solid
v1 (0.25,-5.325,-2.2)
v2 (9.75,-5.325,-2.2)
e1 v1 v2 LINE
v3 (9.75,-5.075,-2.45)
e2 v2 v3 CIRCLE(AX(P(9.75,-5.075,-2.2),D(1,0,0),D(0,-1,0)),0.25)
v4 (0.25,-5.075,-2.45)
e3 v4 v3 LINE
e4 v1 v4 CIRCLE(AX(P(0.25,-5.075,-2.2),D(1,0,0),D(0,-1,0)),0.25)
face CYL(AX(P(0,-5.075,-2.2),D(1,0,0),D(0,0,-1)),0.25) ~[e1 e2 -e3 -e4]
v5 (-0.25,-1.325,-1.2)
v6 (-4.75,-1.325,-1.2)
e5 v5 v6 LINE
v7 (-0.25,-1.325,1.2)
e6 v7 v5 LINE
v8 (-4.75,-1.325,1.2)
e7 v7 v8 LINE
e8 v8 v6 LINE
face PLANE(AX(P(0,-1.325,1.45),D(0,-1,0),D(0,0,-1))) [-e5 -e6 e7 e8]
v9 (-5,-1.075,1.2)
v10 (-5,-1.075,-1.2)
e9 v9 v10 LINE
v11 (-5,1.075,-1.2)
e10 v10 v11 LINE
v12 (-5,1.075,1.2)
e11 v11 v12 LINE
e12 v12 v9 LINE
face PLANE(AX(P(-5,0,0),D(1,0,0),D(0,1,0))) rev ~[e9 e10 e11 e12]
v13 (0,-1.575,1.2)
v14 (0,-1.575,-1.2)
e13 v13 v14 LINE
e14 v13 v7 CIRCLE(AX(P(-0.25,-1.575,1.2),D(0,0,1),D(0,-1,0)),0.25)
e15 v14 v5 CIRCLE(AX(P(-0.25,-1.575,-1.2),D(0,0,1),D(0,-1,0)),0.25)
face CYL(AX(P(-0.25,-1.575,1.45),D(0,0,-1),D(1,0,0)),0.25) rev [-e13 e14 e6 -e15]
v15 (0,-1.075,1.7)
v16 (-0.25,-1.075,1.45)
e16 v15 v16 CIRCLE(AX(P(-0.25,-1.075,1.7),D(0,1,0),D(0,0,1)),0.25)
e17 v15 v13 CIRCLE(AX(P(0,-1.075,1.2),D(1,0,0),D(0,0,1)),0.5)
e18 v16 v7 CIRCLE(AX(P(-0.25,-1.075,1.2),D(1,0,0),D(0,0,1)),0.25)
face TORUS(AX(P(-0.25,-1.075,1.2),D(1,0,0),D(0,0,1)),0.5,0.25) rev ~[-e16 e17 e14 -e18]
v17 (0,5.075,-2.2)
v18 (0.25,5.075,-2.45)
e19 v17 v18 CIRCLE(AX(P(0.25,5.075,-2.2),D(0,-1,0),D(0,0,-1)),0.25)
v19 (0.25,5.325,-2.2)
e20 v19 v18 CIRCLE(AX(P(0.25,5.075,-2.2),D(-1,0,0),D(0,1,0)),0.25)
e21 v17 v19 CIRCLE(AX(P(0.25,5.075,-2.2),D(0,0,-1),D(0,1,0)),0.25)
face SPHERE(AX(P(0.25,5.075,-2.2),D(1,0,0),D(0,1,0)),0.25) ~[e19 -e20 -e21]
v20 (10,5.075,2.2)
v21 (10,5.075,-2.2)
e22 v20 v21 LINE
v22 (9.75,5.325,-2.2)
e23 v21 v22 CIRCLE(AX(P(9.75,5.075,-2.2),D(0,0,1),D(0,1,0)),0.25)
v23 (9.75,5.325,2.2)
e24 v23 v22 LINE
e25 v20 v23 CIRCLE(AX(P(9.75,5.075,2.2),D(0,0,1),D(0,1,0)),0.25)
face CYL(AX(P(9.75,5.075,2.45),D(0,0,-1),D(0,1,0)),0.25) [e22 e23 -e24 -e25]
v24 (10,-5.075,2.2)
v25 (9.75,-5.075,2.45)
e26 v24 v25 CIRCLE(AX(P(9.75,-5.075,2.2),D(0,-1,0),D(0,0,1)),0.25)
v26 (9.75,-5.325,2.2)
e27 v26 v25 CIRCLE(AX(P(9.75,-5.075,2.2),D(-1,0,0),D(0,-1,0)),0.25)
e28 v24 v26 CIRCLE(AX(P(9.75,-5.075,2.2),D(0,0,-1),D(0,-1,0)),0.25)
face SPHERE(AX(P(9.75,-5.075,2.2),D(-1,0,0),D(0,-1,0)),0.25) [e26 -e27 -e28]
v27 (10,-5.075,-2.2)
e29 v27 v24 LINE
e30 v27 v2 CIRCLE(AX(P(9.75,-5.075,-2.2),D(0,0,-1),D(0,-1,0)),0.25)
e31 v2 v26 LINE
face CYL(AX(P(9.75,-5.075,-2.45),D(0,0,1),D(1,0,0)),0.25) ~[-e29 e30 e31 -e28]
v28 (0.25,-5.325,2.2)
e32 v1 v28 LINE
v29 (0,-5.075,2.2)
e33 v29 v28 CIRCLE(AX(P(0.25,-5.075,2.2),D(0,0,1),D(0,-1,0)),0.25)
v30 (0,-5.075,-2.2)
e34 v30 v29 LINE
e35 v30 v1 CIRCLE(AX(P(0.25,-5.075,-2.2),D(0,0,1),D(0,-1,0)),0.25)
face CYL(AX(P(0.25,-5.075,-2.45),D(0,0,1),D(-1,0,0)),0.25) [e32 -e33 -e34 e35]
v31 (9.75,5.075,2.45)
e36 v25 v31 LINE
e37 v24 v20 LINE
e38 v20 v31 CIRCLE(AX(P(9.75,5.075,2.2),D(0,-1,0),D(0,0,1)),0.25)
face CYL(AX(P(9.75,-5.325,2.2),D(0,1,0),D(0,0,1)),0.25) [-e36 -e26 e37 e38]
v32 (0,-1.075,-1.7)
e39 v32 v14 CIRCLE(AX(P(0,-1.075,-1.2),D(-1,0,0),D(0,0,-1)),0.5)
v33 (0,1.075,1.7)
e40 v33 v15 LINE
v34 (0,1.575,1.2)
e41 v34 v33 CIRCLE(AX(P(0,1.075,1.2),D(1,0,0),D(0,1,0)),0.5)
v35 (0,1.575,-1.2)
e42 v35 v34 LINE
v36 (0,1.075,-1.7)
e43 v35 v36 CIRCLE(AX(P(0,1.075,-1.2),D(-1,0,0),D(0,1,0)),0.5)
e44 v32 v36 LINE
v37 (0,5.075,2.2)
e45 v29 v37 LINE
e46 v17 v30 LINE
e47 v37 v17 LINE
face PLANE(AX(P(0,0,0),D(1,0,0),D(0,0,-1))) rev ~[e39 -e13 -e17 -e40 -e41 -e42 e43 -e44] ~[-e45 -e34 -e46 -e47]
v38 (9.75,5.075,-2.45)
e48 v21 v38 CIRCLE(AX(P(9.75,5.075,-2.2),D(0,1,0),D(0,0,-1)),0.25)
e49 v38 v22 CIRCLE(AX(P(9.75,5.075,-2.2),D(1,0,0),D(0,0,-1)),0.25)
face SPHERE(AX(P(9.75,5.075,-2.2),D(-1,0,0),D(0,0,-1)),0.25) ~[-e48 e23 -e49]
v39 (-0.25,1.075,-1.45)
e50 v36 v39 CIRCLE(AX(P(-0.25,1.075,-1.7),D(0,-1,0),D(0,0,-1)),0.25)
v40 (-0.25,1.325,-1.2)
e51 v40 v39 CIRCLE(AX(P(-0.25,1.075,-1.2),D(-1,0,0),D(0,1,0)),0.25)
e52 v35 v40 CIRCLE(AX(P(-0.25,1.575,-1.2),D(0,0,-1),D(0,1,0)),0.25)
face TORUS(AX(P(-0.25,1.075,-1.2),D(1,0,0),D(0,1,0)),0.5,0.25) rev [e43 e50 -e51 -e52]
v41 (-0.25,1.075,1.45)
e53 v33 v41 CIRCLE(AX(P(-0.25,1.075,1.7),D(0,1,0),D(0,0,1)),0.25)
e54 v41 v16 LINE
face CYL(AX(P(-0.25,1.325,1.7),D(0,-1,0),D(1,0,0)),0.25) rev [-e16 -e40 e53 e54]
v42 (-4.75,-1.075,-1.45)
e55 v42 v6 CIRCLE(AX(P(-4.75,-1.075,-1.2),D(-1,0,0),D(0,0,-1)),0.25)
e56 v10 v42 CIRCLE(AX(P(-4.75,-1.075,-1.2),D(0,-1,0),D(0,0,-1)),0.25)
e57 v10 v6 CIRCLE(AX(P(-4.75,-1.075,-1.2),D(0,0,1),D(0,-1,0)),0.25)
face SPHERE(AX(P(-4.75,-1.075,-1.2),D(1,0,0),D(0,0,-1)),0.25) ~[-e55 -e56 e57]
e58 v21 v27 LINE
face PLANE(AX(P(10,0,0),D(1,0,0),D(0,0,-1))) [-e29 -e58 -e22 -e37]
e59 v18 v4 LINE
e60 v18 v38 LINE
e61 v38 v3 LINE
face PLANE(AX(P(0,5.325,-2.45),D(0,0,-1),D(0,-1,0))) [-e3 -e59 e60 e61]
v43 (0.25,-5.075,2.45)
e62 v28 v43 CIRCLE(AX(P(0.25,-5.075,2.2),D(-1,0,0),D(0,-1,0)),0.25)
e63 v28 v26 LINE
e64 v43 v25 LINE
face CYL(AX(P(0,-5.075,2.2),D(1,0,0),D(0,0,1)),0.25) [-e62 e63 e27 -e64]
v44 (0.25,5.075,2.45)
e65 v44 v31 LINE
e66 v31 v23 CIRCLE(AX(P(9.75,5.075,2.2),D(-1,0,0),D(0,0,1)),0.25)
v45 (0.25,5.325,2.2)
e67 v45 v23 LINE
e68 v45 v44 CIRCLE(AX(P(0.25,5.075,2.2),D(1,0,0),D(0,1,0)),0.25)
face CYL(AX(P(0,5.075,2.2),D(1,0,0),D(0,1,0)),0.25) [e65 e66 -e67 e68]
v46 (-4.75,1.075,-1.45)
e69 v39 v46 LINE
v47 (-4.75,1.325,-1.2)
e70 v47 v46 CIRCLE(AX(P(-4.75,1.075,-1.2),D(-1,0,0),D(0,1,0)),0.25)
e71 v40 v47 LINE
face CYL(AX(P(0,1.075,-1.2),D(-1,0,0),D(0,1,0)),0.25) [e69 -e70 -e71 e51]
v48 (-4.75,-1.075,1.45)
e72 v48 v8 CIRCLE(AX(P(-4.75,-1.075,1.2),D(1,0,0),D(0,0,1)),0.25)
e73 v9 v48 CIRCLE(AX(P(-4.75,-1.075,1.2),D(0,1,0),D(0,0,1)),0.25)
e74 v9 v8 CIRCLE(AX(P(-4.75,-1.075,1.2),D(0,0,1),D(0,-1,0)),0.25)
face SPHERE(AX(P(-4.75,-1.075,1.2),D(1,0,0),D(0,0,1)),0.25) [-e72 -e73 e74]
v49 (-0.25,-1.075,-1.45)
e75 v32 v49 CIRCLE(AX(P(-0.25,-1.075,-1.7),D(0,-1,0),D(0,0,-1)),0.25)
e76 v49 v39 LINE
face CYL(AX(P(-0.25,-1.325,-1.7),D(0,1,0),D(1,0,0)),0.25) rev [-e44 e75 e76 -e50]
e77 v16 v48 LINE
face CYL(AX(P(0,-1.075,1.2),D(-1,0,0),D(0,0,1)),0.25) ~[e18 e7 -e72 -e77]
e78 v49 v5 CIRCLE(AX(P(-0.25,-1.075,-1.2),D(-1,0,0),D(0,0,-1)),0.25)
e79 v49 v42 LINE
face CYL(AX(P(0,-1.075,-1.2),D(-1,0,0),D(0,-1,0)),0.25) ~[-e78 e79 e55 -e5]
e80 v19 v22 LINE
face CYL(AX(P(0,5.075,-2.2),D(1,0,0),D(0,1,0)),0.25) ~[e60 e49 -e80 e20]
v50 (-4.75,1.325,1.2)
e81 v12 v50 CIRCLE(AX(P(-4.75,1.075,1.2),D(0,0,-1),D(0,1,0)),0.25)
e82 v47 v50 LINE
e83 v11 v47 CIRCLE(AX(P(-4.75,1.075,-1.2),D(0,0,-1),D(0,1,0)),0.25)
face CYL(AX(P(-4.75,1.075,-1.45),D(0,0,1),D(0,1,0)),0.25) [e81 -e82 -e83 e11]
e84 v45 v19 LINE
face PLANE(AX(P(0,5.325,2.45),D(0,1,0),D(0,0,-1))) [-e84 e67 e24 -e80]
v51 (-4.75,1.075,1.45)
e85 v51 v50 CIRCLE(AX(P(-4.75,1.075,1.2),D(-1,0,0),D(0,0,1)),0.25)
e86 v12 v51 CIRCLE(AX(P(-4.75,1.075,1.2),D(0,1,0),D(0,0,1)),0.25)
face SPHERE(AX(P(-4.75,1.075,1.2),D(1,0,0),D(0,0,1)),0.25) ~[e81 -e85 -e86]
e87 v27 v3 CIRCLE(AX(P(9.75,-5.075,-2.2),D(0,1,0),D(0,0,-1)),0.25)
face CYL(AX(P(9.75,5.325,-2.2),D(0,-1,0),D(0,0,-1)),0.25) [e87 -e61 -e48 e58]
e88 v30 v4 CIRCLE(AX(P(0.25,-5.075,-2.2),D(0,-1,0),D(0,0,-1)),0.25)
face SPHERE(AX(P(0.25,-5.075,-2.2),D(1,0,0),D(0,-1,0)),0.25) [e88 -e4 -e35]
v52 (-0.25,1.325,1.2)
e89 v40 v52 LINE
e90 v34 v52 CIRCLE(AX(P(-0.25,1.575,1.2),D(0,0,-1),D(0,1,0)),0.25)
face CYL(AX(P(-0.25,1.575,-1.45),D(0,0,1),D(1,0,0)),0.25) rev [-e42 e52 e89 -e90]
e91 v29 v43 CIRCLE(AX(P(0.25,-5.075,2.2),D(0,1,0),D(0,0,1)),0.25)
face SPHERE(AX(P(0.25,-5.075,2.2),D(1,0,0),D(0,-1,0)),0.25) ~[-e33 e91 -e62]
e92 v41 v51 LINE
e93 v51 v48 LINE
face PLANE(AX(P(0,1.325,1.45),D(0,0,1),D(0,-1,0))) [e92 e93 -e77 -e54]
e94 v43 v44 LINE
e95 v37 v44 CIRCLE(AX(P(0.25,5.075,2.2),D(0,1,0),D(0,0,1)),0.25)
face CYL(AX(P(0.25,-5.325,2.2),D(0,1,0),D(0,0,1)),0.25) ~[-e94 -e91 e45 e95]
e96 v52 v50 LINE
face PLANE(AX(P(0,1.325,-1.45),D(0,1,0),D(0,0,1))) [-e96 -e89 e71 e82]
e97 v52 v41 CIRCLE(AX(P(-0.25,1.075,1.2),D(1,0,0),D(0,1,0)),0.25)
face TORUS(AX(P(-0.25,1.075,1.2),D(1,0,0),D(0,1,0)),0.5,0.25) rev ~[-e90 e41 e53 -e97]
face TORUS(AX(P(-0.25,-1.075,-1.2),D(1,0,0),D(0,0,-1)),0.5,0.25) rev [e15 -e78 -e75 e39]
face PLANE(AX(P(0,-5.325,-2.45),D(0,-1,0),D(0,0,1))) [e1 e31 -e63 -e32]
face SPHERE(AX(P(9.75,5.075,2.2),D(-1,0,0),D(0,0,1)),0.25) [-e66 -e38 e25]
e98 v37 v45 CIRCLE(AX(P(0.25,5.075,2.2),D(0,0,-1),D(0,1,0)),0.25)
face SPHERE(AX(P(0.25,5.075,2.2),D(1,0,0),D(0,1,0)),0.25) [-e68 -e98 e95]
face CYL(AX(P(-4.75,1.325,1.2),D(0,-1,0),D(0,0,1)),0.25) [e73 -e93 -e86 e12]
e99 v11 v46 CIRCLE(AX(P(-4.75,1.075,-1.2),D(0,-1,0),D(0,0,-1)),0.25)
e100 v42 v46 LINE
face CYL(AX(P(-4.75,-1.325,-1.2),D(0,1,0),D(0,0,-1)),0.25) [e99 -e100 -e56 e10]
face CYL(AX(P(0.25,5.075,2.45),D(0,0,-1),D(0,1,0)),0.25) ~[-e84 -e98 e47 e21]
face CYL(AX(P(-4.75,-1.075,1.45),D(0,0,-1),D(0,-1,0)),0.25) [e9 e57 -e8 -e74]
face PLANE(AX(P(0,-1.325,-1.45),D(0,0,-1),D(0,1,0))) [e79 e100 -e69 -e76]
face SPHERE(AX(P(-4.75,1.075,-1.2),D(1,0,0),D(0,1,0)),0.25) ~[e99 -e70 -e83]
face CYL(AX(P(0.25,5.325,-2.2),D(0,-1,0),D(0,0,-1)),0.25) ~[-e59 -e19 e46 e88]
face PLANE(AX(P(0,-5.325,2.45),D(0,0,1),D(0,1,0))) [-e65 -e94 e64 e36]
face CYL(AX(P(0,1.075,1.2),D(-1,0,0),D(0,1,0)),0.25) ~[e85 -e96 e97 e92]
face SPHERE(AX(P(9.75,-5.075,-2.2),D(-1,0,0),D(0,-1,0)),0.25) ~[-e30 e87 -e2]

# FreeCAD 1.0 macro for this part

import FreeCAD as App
import Part
import Sketcher
Q = App.Units.Quantity


def add_polygon(sketch, points):
    """Adds a closed chain of lines whose ends are joined by coincident constraints."""
    first, n = sketch.GeometryCount, len(points)
    for a, b in zip(points, points[1:] + points[:1]):
        sketch.addGeometry(Part.LineSegment(App.Vector(*a, 0), App.Vector(*b, 0)), False)
    for i in range(n):
        sketch.addConstraint(Sketcher.Constraint("Coincident", first + i, 2, first + (i + 1) % n, 1))

doc = App.newDocument("Part")
body = doc.addObject("PartDesign::Body", "Body")

# Sketch on YZ plane
sketch1 = body.newObject("Sketcher::SketchObject", "Sketch")
sketch1.AttachmentSupport = (doc.getObject("YZ_Plane"), [""])
sketch1.MapMode = "FlatFace"
add_polygon(sketch1, [(1.3, -1.4), (1.3, 1.4), (-1.3, 1.4), (-1.3, -1.4)])  # lines 0-3
sketch1.addConstraint([
    Sketcher.Constraint("Vertical", 0),
    Sketcher.Constraint("Horizontal", 1),
    Sketcher.Constraint("Vertical", 2),
    Sketcher.Constraint("Horizontal", 3),
    Sketcher.Constraint("Symmetric", 0, 2, 2, 2, -1, 1),
    Sketcher.Constraint("DistanceY", 0, 1, 0, 2, Q("2.9 mm")),
    Sketcher.Constraint("DistanceX", 1, 2, 1, 1, Q("2.65 mm")),
])
pad1 = body.newObject("PartDesign::Pad", "Pad")
pad1.Profile = sketch1
pad1.Length = 5
pad1.Reversed = True

# Sketch on YZ plane
sketch2 = body.newObject("Sketcher::SketchObject", "Sketch001")
sketch2.AttachmentSupport = (doc.getObject("YZ_Plane"), [""])
sketch2.MapMode = "FlatFace"
add_polygon(sketch2, [(5.3, -2.5), (5.3, 2.5), (-5.3, 2.5), (-5.3, -2.5)])  # lines 0-3
sketch2.addConstraint([
    Sketcher.Constraint("Vertical", 0),
    Sketcher.Constraint("Horizontal", 1),
    Sketcher.Constraint("Vertical", 2),
    Sketcher.Constraint("Horizontal", 3),
    Sketcher.Constraint("Symmetric", 0, 2, 2, 2, -1, 1),
    Sketcher.Constraint("DistanceY", 0, 1, 0, 2, Q("4.9 mm")),
    Sketcher.Constraint("DistanceX", 1, 2, 1, 1, Q("10.65 mm")),
])
pad2 = body.newObject("PartDesign::Pad", "Pad001")
pad2.Profile = sketch2
pad2.Length = 10
doc.recompute()

fillet = body.newObject("PartDesign::Fillet", "Fillet")
fillet.Base = (pad2, ["Edge1"])
fillet.UseAllEdges = True
fillet.Radius = 0.25

doc.recompute()
